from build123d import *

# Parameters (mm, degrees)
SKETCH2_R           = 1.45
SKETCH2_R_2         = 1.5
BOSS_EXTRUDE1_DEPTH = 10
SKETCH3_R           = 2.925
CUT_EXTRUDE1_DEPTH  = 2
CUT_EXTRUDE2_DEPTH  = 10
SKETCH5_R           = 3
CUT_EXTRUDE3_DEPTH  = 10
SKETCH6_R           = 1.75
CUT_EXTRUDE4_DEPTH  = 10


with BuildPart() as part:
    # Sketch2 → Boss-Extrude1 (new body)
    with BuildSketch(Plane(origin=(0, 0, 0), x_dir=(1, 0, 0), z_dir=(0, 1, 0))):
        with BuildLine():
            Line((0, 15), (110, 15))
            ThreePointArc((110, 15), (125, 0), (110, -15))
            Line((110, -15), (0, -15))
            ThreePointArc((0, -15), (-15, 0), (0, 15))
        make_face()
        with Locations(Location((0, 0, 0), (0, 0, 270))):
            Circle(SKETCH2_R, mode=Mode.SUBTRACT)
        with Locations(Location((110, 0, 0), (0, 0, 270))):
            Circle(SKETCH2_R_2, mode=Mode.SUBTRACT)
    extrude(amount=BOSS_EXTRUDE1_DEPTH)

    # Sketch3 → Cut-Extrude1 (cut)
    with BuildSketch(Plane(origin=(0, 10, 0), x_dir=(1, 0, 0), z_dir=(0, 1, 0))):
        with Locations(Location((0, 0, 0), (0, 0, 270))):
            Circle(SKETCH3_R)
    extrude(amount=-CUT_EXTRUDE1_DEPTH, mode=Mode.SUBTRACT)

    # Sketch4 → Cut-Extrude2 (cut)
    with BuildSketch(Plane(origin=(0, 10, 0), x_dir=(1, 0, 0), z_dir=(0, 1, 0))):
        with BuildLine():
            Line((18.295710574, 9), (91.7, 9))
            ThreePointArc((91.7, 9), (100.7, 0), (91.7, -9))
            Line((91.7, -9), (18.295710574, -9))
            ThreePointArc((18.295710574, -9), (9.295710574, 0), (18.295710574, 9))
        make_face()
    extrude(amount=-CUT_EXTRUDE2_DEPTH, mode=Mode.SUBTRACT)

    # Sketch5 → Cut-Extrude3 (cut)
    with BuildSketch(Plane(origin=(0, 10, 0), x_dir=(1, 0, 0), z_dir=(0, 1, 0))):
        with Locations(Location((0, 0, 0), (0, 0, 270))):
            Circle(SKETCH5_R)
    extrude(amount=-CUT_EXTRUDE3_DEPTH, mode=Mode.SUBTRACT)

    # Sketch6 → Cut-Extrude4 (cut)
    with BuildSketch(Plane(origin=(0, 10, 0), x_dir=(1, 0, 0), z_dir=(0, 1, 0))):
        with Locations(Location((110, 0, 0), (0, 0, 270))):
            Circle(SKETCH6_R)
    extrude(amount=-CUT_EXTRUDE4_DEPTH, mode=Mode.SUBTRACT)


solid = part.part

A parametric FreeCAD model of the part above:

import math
import FreeCAD as App
import Part
import Sketcher
from FreeCAD import Vector

doc = App.newDocument("Part")
body = doc.addObject("PartDesign::Body", "Body")

sketch1 = body.newObject("Sketcher::SketchObject", "Sketch")
sketch1.AttachmentSupport = (doc.getObject("XZ_Plane"), [""])
sketch1.MapMode = "FlatFace"
sketch1.addGeometry(Part.LineSegment(Vector(110, -15, 0), Vector(0, -15, 0)), False)
sketch1.addGeometry(Part.ArcOfCircle(Part.Circle(Vector(0, 0, 0), Vector(0, 0, 1), 15), math.radians(90), math.radians(270)), False)
sketch1.addGeometry(Part.LineSegment(Vector(0, 15, 0), Vector(110, 15, 0)), False)
sketch1.addGeometry(Part.ArcOfCircle(Part.Circle(Vector(110, 0, 0), Vector(0, 0, 1), 15), math.radians(-90), math.radians(90)), False)
sketch1.addGeometry(Part.Circle(Vector(110, 0, 0), Vector(0, 0, 1), 1.5), False)
sketch1.addGeometry(Part.Circle(Vector(0, 0, 0), Vector(0, 0, 1), 1.45), False)
sketch1.addConstraint(Sketcher.Constraint("Tangent", 0, 2, 1, 2))
sketch1.addConstraint(Sketcher.Constraint("Tangent", 1, 1, 2, 1))
sketch1.addConstraint(Sketcher.Constraint("Tangent", 2, 2, 3, 2))
sketch1.addConstraint(Sketcher.Constraint("Tangent", 3, 1, 0, 1))
sketch1.addConstraint(Sketcher.Constraint("Horizontal", 0))
sketch1.addConstraint(Sketcher.Constraint("Horizontal", 2))
sketch1.addConstraint(Sketcher.Constraint("Coincident", 1, 3, -1, 1))
sketch1.addConstraint(Sketcher.Constraint("Coincident", 5, 3, -1, 1))
sketch1.addConstraint(Sketcher.Constraint("Coincident", 4, 3, 3, 3))
sketch1.addConstraint(Sketcher.Constraint("Diameter", 4, 3.0))
sketch1.addConstraint(Sketcher.Constraint("Radius", 1, 15.0))
sketch1.addConstraint(Sketcher.Constraint("Diameter", 5, 2.9))
sketch1.addConstraint(Sketcher.Constraint("DistanceX", 0, 2, 0, 1, 110.0))
pad1 = body.newObject("PartDesign::Pad", "Pad")
pad1.Profile = sketch1
pad1.Length = 10
pad1.Reversed = True

sketch2 = body.newObject("Sketcher::SketchObject", "Sketch001")
sketch2.AttachmentSupport = (doc.getObject("XZ_Plane"), [""])
sketch2.MapMode = "FlatFace"
sketch2.AttachmentOffset = App.Placement(Vector(0, 0, -10), App.Rotation())
sketch2.addGeometry(Part.Circle(Vector(0, 0, 0), Vector(0, 0, 1), 2.925), False)
sketch2.addConstraint(Sketcher.Constraint("Coincident", 0, 3, -1, 1))
sketch2.addConstraint(Sketcher.Constraint("Diameter", 0, 5.85))
pocket1 = body.newObject("PartDesign::Pocket", "Pocket")
pocket1.Profile = sketch2
pocket1.Length = 2
pocket1.Reversed = True

sketch3 = body.newObject("Sketcher::SketchObject", "Sketch002")
sketch3.AttachmentSupport = (doc.getObject("XZ_Plane"), [""])
sketch3.MapMode = "FlatFace"
sketch3.AttachmentOffset = App.Placement(Vector(0, 0, -10), App.Rotation())
sketch3.addGeometry(Part.LineSegment(Vector(91.7, -9, 0), Vector(18.295711, -9, 0)), False)
sketch3.addGeometry(Part.ArcOfCircle(Part.Circle(Vector(18.295711, 0, 0), Vector(0, 0, 1), 9), math.radians(90), math.radians(270)), False)
sketch3.addGeometry(Part.LineSegment(Vector(18.295711, 9, 0), Vector(91.7, 9, 0)), False)
sketch3.addGeometry(Part.ArcOfCircle(Part.Circle(Vector(91.7, 0, 0), Vector(0, 0, 1), 9), math.radians(-90), math.radians(90)), False)
sketch3.addConstraint(Sketcher.Constraint("Tangent", 0, 2, 1, 2))
sketch3.addConstraint(Sketcher.Constraint("Tangent", 1, 1, 2, 1))
sketch3.addConstraint(Sketcher.Constraint("Tangent", 2, 2, 3, 2))
sketch3.addConstraint(Sketcher.Constraint("Tangent", 3, 1, 0, 1))
sketch3.addConstraint(Sketcher.Constraint("Horizontal", 0))
sketch3.addConstraint(Sketcher.Constraint("Horizontal", 2))
sketch3.addConstraint(Sketcher.Constraint("PointOnObject", 1, 3, -1))
sketch3.addConstraint(Sketcher.Constraint("Radius", 1, 9.0))
sketch3.addConstraint(Sketcher.Constraint("DistanceX", -1, 1, 3, 3, 91.7))
sketch3.addConstraint(Sketcher.Constraint("DistanceX", 0, 2, 0, 1, 73.404289))
pocket2 = body.newObject("PartDesign::Pocket", "Pocket001")
pocket2.Profile = sketch3
pocket2.Length = 10
pocket2.Reversed = True

sketch4 = body.newObject("Sketcher::SketchObject", "Sketch003")
sketch4.AttachmentSupport = (doc.getObject("XZ_Plane"), [""])
sketch4.MapMode = "FlatFace"
sketch4.AttachmentOffset = App.Placement(Vector(0, 0, -10), App.Rotation())
sketch4.addGeometry(Part.Circle(Vector(0, 0, 0), Vector(0, 0, 1), 3), False)
sketch4.addConstraint(Sketcher.Constraint("Coincident", 0, 3, -1, 1))
sketch4.addConstraint(Sketcher.Constraint("Diameter", 0, 6.0))
pocket3 = body.newObject("PartDesign::Pocket", "Pocket002")
pocket3.Profile = sketch4
pocket3.Length = 10
pocket3.Reversed = True

sketch5 = body.newObject("Sketcher::SketchObject", "Sketch004")
sketch5.AttachmentSupport = (doc.getObject("XZ_Plane"), [""])
sketch5.MapMode = "FlatFace"
sketch5.AttachmentOffset = App.Placement(Vector(0, 0, -10), App.Rotation())
sketch5.addGeometry(Part.Circle(Vector(110, 0, 0), Vector(0, 0, 1), 1.75), False)
sketch5.addConstraint(Sketcher.Constraint("PointOnObject", 0, 3, -1))
sketch5.addConstraint(Sketcher.Constraint("Diameter", 0, 3.5))
sketch5.addConstraint(Sketcher.Constraint("DistanceX", -1, 1, 0, 3, 110.0))
pocket4 = body.newObject("PartDesign::Pocket", "Pocket003")
pocket4.Profile = sketch5
pocket4.Length = 10
pocket4.Reversed = True

doc.recompute()
